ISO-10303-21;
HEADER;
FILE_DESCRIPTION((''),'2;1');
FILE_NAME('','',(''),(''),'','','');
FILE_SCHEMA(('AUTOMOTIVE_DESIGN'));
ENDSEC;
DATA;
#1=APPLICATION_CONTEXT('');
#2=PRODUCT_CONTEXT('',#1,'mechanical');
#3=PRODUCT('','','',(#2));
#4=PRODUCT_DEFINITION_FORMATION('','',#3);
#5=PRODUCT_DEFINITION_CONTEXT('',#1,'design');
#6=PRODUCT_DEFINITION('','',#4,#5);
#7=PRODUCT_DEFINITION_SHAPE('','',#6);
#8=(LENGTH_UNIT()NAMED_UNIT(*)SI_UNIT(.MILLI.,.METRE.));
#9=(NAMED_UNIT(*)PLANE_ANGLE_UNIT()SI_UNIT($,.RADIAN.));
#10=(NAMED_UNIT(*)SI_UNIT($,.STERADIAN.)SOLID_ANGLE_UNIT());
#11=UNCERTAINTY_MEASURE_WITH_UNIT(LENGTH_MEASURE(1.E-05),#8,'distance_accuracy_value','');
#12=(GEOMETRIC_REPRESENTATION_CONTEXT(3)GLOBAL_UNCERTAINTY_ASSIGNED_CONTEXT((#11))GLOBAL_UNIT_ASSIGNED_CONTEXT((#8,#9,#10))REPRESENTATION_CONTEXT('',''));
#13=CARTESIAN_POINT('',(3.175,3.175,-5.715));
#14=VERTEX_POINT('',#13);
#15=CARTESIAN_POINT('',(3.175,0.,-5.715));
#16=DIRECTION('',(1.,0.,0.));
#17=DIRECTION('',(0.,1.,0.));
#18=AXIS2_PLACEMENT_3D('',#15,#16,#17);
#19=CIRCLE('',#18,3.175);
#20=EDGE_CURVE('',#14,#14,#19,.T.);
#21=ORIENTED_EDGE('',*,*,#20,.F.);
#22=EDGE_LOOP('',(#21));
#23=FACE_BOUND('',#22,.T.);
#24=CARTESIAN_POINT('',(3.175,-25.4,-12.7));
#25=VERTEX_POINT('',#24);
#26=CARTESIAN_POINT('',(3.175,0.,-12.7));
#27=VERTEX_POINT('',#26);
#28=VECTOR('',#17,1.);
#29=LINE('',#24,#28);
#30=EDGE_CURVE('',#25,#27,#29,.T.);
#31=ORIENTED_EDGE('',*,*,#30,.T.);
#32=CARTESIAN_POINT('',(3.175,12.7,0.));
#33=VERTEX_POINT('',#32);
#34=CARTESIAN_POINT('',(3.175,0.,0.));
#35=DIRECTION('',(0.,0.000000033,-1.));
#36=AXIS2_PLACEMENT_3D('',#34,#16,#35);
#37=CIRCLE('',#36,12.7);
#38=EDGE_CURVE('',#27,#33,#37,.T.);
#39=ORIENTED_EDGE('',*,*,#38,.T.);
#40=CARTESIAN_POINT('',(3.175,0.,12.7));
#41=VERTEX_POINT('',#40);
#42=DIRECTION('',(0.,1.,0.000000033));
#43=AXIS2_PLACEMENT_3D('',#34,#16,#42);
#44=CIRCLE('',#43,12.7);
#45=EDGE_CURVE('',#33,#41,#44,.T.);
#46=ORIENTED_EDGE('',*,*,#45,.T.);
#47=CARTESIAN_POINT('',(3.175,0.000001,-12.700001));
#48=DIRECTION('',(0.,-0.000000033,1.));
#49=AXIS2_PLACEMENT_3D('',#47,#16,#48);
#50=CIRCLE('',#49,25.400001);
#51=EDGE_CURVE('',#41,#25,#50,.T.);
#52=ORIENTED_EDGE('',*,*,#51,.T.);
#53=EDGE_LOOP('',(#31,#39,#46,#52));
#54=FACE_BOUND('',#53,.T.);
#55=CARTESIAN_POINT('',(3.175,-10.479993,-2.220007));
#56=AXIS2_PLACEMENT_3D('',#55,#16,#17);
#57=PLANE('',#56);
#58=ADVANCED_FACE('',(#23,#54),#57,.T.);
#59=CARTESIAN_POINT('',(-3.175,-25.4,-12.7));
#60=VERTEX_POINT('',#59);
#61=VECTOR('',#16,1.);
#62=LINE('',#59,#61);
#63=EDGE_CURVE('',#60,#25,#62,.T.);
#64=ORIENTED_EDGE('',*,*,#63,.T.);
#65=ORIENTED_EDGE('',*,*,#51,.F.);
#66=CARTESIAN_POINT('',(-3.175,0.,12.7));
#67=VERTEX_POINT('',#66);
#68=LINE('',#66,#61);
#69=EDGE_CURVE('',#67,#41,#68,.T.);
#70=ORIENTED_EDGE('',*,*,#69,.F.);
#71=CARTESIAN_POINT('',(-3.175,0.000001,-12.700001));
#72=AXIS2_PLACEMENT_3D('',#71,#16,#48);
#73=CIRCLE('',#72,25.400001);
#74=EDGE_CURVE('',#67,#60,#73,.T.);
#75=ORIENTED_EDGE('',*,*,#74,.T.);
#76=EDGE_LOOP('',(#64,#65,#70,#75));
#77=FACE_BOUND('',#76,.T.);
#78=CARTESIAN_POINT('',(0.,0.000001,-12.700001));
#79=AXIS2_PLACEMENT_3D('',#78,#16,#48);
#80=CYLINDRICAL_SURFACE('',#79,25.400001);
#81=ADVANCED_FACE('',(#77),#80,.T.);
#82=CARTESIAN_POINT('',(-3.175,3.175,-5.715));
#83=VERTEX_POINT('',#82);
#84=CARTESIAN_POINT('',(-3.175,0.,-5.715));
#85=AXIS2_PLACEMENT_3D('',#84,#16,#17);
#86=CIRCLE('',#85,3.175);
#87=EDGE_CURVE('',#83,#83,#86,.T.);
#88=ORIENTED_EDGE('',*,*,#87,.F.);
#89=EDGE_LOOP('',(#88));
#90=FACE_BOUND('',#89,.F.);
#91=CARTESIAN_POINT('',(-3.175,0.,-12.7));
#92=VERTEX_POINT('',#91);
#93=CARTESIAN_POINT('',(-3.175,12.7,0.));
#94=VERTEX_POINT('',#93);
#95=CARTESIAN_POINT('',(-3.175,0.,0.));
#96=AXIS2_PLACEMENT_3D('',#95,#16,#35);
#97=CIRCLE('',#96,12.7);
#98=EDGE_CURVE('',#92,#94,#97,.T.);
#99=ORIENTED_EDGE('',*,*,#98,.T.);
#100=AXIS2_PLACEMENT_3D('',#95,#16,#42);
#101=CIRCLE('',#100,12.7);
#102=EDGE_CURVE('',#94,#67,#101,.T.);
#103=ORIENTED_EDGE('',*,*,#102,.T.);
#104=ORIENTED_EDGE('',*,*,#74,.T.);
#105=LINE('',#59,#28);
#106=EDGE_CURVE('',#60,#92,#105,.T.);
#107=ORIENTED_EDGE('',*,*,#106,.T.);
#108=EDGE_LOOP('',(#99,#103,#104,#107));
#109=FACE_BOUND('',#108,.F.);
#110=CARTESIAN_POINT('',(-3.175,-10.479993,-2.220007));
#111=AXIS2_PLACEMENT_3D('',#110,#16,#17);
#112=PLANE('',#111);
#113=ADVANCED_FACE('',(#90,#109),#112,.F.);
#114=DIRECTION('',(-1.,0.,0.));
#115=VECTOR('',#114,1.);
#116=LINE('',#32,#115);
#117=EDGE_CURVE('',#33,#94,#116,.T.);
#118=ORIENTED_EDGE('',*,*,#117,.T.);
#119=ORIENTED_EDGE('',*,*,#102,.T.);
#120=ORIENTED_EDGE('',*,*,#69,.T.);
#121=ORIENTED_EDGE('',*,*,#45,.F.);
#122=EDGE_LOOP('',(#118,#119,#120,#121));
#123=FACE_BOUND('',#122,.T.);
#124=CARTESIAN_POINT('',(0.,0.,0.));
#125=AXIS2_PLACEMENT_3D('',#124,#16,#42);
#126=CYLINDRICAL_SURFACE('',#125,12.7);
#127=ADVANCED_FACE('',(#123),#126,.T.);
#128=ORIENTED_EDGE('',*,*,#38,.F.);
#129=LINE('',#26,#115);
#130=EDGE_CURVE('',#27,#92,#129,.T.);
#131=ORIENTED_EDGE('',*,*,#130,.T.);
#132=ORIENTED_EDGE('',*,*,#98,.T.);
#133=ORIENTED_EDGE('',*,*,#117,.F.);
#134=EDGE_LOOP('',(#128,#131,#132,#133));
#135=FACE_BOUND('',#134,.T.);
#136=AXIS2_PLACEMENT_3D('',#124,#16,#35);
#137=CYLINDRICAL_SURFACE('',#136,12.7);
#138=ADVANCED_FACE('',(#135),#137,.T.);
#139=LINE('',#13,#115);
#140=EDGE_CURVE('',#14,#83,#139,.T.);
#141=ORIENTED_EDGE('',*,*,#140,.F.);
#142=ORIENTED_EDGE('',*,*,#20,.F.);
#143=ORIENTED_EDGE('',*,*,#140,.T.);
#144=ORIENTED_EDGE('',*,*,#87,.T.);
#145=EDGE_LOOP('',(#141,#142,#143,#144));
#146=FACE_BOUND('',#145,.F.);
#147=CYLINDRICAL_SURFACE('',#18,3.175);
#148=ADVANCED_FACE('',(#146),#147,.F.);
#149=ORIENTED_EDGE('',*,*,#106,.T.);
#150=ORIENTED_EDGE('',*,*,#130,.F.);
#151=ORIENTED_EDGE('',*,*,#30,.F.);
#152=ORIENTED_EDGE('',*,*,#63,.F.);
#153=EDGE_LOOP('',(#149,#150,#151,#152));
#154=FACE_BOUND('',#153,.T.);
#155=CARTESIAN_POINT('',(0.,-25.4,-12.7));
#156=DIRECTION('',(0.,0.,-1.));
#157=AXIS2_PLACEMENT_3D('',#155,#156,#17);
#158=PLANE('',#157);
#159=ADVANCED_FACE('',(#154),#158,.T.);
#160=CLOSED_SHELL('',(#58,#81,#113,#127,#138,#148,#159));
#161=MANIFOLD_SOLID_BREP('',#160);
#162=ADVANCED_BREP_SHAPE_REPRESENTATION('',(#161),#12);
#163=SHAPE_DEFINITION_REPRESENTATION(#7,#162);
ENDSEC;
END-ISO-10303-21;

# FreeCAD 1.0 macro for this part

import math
import FreeCAD as App
import Part
import Sketcher
from FreeCAD import Vector
Q = App.Units.Quantity

doc = App.newDocument("Part")
body = doc.addObject("PartDesign::Body", "Body")

# Sketch on YZ plane
sketch1 = doc.addObject("Sketcher::SketchObject", "Sketch")
body.addObject(sketch1)
sketch1.AttachmentSupport = (doc.YZ_Plane, [""])
sketch1.MapMode = "FlatFace"
sketch1.addGeometry(Part.ArcOfCircle(Part.Circle(Vector(0, 0, 0), Vector(0, 0, 1), 13), math.radians(0), math.radians(90)), False)
sketch1.addGeometry(Part.ArcOfCircle(Part.Circle(Vector(0, -13, 0), Vector(0, 0, 1), 25), math.radians(90), math.radians(180)), False)
sketch1.addGeometry(Part.LineSegment(Vector(-25, -13, 0), Vector(0, -13, 0)), False)
sketch1.addGeometry(Part.ArcOfCircle(Part.Circle(Vector(0, 0, 0), Vector(0, 0, 1), 13), math.radians(-90), math.radians(0)), False)
sketch1.addConstraint(Sketcher.Constraint("Tangent", 0, 2, 1, 1))
sketch1.addConstraint(Sketcher.Constraint("Coincident", 1, 2, 2, 1))
sketch1.addConstraint(Sketcher.Constraint("Tangent", 2, 2, 3, 1))
sketch1.addConstraint(Sketcher.Constraint("Tangent", 3, 2, 0, 1))
sketch1.addConstraint(Sketcher.Constraint("Horizontal", 2))
sketch1.addConstraint(Sketcher.Constraint("Coincident", 0, 3, -1, 1))
sketch1.addConstraint(Sketcher.Constraint("Coincident", 2, 2, 1, 3))
sketch1.addConstraint(Sketcher.Constraint("Equal", 0, 3))
sketch1.addConstraint(Sketcher.Constraint("PointOnObject", 3, 2, -1))
sketch1.addConstraint(Sketcher.Constraint("Radius", 1, Q("1 in")))
pad1 = doc.addObject("PartDesign::Pad", "Pad")
body.addObject(pad1)
pad1.Profile = sketch1
pad1.Length = Q("0.25 in")
pad1.Midplane = True

# Sketch on YZ plane
sketch2 = doc.addObject("Sketcher::SketchObject", "Sketch001")
body.addObject(sketch2)
sketch2.AttachmentSupport = (doc.YZ_Plane, [""])
sketch2.MapMode = "FlatFace"
sketch2.AttachmentOffset = App.Placement(Vector(0, 0, 0.125 * 25.4), App.Rotation())
sketch2.addGeometry(Part.Circle(Vector(0, -5.7, 0), Vector(0, 0, 1), 3.2), False)
sketch2.addConstraint(Sketcher.Constraint("PointOnObject", 0, 3, -2))
sketch2.addConstraint(Sketcher.Constraint("Diameter", 0, Q("0.25 in")))
sketch2.addConstraint(Sketcher.Constraint("DistanceY", 0, 3, -1, 1, Q("0.225 in")))
pocket1 = doc.addObject("PartDesign::Pocket", "Pocket")
body.addObject(pocket1)
pocket1.Profile = sketch2
pocket1.Type = "ThroughAll"

doc.recompute()
